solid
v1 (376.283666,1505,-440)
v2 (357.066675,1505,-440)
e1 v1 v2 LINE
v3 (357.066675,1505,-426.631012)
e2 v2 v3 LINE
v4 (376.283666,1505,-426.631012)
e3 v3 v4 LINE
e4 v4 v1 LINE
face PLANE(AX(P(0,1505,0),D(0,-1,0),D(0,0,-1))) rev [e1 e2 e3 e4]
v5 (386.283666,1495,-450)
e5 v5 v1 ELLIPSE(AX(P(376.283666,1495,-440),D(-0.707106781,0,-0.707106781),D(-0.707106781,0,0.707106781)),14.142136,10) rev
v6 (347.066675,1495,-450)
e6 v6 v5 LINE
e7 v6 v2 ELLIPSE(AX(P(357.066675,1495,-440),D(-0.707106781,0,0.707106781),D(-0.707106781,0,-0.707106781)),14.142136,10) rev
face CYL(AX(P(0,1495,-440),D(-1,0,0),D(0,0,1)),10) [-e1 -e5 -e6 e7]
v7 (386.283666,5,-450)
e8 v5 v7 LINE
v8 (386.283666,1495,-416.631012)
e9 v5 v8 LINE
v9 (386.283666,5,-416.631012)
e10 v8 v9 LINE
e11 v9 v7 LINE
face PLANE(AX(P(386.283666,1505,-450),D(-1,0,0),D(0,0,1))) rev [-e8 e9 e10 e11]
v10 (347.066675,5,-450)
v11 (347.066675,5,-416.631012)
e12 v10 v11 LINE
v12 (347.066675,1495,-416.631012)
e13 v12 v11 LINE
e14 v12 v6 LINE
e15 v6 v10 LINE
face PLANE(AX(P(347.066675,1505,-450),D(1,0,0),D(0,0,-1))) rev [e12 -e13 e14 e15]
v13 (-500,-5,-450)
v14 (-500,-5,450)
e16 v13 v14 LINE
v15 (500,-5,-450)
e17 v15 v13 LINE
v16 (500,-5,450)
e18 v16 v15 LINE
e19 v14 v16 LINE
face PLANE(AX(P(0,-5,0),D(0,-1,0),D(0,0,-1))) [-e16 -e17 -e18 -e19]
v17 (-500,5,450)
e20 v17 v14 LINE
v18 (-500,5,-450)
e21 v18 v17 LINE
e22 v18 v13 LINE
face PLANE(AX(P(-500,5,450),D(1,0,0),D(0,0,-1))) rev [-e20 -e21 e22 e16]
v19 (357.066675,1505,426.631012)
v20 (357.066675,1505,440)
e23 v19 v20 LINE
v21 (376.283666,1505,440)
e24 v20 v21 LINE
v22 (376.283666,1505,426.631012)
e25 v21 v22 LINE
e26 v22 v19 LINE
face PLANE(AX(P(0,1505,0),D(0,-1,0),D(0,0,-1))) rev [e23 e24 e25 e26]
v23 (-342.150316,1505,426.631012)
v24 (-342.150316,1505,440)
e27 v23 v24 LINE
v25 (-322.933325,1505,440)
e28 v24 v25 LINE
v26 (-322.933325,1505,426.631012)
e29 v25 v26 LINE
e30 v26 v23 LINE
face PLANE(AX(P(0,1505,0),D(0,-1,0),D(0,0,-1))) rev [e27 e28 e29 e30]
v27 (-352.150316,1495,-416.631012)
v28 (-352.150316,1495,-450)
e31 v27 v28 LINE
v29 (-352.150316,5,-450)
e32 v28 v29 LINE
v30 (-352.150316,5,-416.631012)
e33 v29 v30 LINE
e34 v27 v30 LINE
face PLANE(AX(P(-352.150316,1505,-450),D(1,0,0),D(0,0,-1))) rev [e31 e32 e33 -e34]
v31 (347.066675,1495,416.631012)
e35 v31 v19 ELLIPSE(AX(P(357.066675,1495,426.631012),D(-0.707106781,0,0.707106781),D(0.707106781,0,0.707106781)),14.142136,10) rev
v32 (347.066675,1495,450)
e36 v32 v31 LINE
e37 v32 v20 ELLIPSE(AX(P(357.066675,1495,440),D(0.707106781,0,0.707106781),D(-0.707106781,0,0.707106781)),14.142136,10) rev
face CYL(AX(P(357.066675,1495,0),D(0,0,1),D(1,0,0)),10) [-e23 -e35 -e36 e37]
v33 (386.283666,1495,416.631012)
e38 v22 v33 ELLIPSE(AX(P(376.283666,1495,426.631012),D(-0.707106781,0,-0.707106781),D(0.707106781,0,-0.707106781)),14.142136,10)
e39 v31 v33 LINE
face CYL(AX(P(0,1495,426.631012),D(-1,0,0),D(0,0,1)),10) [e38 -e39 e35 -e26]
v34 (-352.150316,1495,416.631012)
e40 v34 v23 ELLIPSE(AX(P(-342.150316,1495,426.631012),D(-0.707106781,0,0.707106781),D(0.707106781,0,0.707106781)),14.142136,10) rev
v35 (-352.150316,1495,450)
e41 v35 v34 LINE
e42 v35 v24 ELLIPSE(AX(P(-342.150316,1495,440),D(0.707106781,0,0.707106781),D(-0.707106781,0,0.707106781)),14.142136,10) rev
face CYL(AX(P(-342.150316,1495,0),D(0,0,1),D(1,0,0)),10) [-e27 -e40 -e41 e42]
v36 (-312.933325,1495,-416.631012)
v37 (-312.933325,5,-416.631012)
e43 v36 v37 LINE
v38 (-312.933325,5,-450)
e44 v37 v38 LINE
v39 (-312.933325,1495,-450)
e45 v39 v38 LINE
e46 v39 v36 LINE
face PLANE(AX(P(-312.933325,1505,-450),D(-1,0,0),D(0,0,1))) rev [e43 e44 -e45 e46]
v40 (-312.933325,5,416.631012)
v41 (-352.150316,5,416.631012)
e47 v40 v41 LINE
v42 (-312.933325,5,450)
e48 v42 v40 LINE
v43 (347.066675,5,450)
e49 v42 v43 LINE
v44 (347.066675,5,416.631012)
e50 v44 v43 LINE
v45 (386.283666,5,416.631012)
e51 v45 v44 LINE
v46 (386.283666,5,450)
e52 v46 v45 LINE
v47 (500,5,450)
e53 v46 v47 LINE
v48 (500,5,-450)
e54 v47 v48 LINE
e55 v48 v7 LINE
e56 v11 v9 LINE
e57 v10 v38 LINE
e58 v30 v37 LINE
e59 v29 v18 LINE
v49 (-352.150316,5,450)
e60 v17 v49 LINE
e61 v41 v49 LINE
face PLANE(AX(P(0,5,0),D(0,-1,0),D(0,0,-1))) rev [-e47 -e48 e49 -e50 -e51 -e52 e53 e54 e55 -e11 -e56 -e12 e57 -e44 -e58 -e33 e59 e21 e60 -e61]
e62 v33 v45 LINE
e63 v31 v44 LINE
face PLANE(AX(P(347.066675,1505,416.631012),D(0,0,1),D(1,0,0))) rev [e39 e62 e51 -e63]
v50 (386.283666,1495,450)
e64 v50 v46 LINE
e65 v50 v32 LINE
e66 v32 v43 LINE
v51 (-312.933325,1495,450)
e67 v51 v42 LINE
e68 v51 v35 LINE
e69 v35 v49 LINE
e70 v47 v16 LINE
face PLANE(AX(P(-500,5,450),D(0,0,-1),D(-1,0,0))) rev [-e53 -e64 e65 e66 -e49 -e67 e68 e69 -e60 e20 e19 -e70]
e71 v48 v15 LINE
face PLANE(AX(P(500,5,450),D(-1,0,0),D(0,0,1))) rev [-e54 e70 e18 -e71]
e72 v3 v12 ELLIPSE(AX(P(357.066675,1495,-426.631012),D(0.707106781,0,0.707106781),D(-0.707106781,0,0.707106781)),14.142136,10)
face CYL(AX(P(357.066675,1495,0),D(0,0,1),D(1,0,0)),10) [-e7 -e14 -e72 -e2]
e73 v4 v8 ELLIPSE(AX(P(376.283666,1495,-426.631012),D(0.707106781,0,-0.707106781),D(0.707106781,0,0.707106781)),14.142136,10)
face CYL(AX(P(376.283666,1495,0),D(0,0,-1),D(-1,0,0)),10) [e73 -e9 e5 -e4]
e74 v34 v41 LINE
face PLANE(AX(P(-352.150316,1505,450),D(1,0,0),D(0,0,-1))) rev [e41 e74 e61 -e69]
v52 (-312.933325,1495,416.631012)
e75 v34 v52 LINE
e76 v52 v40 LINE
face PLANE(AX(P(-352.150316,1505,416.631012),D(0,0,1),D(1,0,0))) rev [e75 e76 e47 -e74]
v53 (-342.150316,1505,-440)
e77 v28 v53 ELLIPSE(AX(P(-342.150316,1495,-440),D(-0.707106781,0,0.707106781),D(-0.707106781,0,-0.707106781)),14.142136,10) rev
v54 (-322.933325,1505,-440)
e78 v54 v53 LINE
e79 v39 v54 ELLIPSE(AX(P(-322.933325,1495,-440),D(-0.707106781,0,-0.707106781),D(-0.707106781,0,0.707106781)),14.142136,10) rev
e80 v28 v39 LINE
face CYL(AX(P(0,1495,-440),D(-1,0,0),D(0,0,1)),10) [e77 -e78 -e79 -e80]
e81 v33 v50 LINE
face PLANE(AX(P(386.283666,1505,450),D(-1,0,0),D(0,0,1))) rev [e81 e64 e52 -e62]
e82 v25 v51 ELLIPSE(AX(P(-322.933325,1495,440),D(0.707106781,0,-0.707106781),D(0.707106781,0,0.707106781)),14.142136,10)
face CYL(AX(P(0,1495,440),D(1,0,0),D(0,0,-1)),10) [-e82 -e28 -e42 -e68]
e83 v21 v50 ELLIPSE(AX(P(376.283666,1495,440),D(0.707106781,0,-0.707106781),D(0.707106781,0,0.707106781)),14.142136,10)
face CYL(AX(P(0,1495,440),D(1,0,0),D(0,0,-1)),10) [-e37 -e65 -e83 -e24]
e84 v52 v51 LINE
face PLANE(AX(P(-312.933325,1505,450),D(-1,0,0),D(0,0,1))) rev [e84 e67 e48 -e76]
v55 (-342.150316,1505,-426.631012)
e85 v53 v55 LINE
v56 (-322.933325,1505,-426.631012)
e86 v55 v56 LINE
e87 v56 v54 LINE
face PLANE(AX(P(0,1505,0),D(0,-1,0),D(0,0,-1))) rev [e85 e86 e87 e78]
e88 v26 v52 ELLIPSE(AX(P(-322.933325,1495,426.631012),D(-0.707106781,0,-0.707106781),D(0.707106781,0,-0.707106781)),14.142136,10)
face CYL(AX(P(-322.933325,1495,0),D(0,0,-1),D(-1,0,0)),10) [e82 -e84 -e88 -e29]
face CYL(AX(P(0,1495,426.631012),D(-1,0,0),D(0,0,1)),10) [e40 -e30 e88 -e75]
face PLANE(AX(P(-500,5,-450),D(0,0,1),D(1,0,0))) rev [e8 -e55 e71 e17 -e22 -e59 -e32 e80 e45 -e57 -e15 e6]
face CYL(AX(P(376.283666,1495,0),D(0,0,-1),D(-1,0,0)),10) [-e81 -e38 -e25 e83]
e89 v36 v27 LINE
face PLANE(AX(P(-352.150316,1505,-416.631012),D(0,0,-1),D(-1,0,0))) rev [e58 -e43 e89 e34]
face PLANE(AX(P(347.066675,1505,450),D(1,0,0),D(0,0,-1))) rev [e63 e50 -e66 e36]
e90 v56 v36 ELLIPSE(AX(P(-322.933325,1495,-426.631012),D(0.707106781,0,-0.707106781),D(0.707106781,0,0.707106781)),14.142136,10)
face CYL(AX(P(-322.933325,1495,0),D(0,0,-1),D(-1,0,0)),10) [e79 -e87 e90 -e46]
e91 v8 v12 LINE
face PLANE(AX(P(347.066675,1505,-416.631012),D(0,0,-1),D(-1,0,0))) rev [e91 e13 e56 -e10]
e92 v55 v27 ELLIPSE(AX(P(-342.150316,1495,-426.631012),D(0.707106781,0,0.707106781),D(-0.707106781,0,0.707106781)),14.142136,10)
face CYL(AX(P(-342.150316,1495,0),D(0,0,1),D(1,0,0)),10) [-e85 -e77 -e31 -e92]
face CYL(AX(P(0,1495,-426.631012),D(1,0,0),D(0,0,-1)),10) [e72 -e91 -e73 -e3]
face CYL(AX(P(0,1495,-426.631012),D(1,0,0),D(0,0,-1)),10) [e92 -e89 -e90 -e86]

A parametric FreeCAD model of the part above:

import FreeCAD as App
import Part
import Sketcher

V = App.Vector
Q = App.Units.Quantity


def edges_at(feature, points):
    """Names of the edges that pass closest to the given points."""
    edges = feature.Shape.Edges
    near = lambda p: min(range(len(edges)), key=lambda i: edges[i].distToShape(Part.Vertex(*p))[0])
    return sorted({f"Edge{near(p) + 1}" for p in points})


def add_polygon(sketch, points):
    """Adds a closed chain of lines whose ends are joined by coincident constraints."""
    first, n = sketch.GeometryCount, len(points)
    for a, b in zip(points, points[1:] + points[:1]):
        sketch.addGeometry(Part.LineSegment(App.Vector(*a, 0), App.Vector(*b, 0)), False)
    for i in range(n):
        sketch.addConstraint(Sketcher.Constraint("Coincident", first + i, 2, first + (i + 1) % n, 1))

doc = App.newDocument("Part")
body = doc.addObject("PartDesign::Body", "Body")

sketch1 = body.newObject("Sketcher::SketchObject", "Sketch")
sketch1.AttachmentSupport = (doc.getObject("XZ_Plane"), [""])
sketch1.MapMode = "FlatFace"
add_polygon(sketch1, [(-500, -450), (-500, 450), (500, 450), (500, -450)])
sketch1.addConstraint(Sketcher.Constraint("Vertical", 0))
sketch1.addConstraint(Sketcher.Constraint("Horizontal", 1))
sketch1.addConstraint(Sketcher.Constraint("Vertical", 2))
sketch1.addConstraint(Sketcher.Constraint("Horizontal", 3))
sketch1.addConstraint(Sketcher.Constraint("Symmetric", 0, 2, 2, 2, -1, 1))
sketch1.addConstraint(Sketcher.Constraint("DistanceX", 1, 1, 1, 2, Q("1000 mm")))
sketch1.addConstraint(Sketcher.Constraint("DistanceY", 0, 1, 0, 2, Q("900 mm")))
pad1 = body.newObject("PartDesign::Pad", "Pad")
pad1.Profile = sketch1
pad1.Length = 10
pad1.Midplane = True

sketch2 = body.newObject("Sketcher::SketchObject", "Sketch001")
sketch2.AttachmentSupport = (doc.getObject("XZ_Plane"), [""])
sketch2.MapMode = "FlatFace"
sketch2.AttachmentOffset = App.Placement(V(0, 0, -5), App.Rotation())
add_polygon(sketch2, [(-352, 417), (-352, 450), (-313, 450), (-313, 417)])
add_polygon(sketch2, [(347, 417), (347, 450), (386, 450), (386, 417)])
add_polygon(sketch2, [(347, -450), (347, -417), (386, -417), (386, -450)])
add_polygon(sketch2, [(-352, -450), (-352, -417), (-313, -417), (-313, -450)])
sketch2.addConstraint(Sketcher.Constraint("Vertical", 0))
sketch2.addConstraint(Sketcher.Constraint("Horizontal", 1))
sketch2.addConstraint(Sketcher.Constraint("Vertical", 2))
sketch2.addConstraint(Sketcher.Constraint("Horizontal", 3))
sketch2.addConstraint(Sketcher.Constraint("Vertical", 4))
sketch2.addConstraint(Sketcher.Constraint("Horizontal", 5))
sketch2.addConstraint(Sketcher.Constraint("Vertical", 6))
sketch2.addConstraint(Sketcher.Constraint("Horizontal", 7))
sketch2.addConstraint(Sketcher.Constraint("Vertical", 8))
sketch2.addConstraint(Sketcher.Constraint("Horizontal", 9))
sketch2.addConstraint(Sketcher.Constraint("Vertical", 10))
sketch2.addConstraint(Sketcher.Constraint("Horizontal", 11))
sketch2.addConstraint(Sketcher.Constraint("Vertical", 12))
sketch2.addConstraint(Sketcher.Constraint("Horizontal", 13))
sketch2.addConstraint(Sketcher.Constraint("Vertical", 14))
sketch2.addConstraint(Sketcher.Constraint("Horizontal", 15))
sketch2.addConstraint(Sketcher.Constraint("Symmetric", 7, 2, 8, 2, -1))
sketch2.addConstraint(Sketcher.Constraint("Symmetric", 5, 2, 10, 2, -1))
sketch2.addConstraint(Sketcher.Constraint("Symmetric", 3, 2, 12, 2, -1))
sketch2.addConstraint(Sketcher.Constraint("Symmetric", 1, 2, 14, 2, -1))
sketch2.addConstraint(Sketcher.Constraint("Horizontal", 1, 2, 4, 2))
sketch2.addConstraint(Sketcher.Constraint("Horizontal", 3, 2, 6, 2))
sketch2.addConstraint(Sketcher.Constraint("Equal", 3, 5))
sketch2.addConstraint(Sketcher.Constraint("DistanceY", -1, 1, 0, 2, Q("450 mm")))
sketch2.addConstraint(Sketcher.Constraint("DistanceX", 1, 2, 4, 2, Q("660 mm")))
sketch2.addConstraint(Sketcher.Constraint("DistanceX", 1, 1, 1, 2, Q("39.216991 mm")))
sketch2.addConstraint(Sketcher.Constraint("DistanceY", 0, 1, 0, 2, Q("33.368988 mm")))
sketch2.addConstraint(Sketcher.Constraint("DistanceX", 0, 2, -1, 1, Q("352.150316 mm")))
pad2 = body.newObject("PartDesign::Pad", "Pad001")
pad2.Profile = sketch2
pad2.Length = 1500
pad2.Reversed = True
doc.recompute()

fillet = body.newObject("PartDesign::Fillet", "Fillet")
fillet.Base = (pad2, edges_at(pad2, [
    (-352.15, 1505, 433.316),
    (-332.542, 1505, 450),
    (-312.933, 1505, 433.316),
    (-332.542, 1505, 416.631),
    (347.067, 1505, 433.316),
    (366.675, 1505, 450),
    (386.284, 1505, 433.316),
    (366.675, 1505, 416.631),
    (366.675, 1505, -450),
    (347.067, 1505, -433.316),
    (366.675, 1505, -416.631),
    (386.284, 1505, -433.316),
    (-332.542, 1505, -450),
    (-352.15, 1505, -433.316),
    (-332.542, 1505, -416.631),
    (-312.933, 1505, -433.316),
]))
fillet.Radius = 10

doc.recompute()
